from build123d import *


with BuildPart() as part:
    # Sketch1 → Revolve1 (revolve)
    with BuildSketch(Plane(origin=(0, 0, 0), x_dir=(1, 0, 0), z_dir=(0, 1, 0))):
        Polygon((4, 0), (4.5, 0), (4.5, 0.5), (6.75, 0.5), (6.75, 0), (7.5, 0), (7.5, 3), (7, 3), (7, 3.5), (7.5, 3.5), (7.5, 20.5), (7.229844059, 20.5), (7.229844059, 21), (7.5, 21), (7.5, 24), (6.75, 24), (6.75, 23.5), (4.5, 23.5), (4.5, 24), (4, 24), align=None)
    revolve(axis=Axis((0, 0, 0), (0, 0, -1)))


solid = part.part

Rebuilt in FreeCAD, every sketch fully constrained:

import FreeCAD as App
import Part
import Sketcher


def add_polygon(sketch, points):
    """Adds a closed chain of lines whose ends are joined by coincident constraints."""
    first, n = sketch.GeometryCount, len(points)
    for a, b in zip(points, points[1:] + points[:1]):
        sketch.addGeometry(Part.LineSegment(App.Vector(*a, 0), App.Vector(*b, 0)), False)
    for i in range(n):
        sketch.addConstraint(Sketcher.Constraint("Coincident", first + i, 2, first + (i + 1) % n, 1))

doc = App.newDocument("Part")
body = doc.addObject("PartDesign::Body", "Body")

sketch1 = body.newObject("Sketcher::SketchObject", "Sketch")
sketch1.AttachmentSupport = (doc.getObject("XZ_Plane"), [""])
sketch1.MapMode = "FlatFace"
add_polygon(sketch1, [(4, 0), (4.5, 0), (4.5, -0.5), (6.75, -0.5), (6.75, 0), (7.5, 0), (7.5, -3), (7, -3), (7, -3.5), (7.5, -3.5), (7.5, -20.5), (7.23, -20.5), (7.23, -21), (7.5, -21), (7.5, -24), (6.75, -24), (6.75, -23.5), (4.5, -23.5), (4.5, -24), (4, -24)])
sketch1.addConstraint([
    Sketcher.Constraint("Horizontal", 0),
    Sketcher.Constraint("Vertical", 1),
    Sketcher.Constraint("Horizontal", 2),
    Sketcher.Constraint("Vertical", 3),
    Sketcher.Constraint("Horizontal", 4),
    Sketcher.Constraint("Vertical", 5),
    Sketcher.Constraint("Horizontal", 6),
    Sketcher.Constraint("Vertical", 7),
    Sketcher.Constraint("Horizontal", 8),
    Sketcher.Constraint("Vertical", 9),
    Sketcher.Constraint("Horizontal", 10),
    Sketcher.Constraint("Vertical", 11),
    Sketcher.Constraint("Horizontal", 12),
    Sketcher.Constraint("Vertical", 13),
    Sketcher.Constraint("Horizontal", 14),
    Sketcher.Constraint("Vertical", 15),
    Sketcher.Constraint("Horizontal", 16),
    Sketcher.Constraint("Vertical", 17),
    Sketcher.Constraint("Horizontal", 18),
    Sketcher.Constraint("Vertical", 19),
    Sketcher.Constraint("PointOnObject", 0, 2, -1),
    Sketcher.Constraint("PointOnObject", 3, 2, -1),
    Sketcher.Constraint("Horizontal", 14, 2, 17, 2),
    Sketcher.Constraint("Vertical", 5, 2, 8, 2),
    Sketcher.Constraint("Vertical", 9, 2, 12, 2),
    Sketcher.Constraint("Vertical", 3, 2, 14, 2),
    Sketcher.Constraint("Vertical", 1, 2, 16, 2),
    Sketcher.Constraint("Equal", 0, 6),
    Sketcher.Constraint("Equal", 18, 1),
    Sketcher.Constraint("Equal", 3, 7),
    Sketcher.Constraint("Equal", 7, 11),
    Sketcher.Constraint("Equal", 5, 13),
    Sketcher.Constraint("Equal", 11, 15),
    Sketcher.Constraint("DistanceY", 5, 2, 5, 1, 3.0),
    Sketcher.Constraint("DistanceY", 9, 2, 9, 1, 17.0),
    Sketcher.Constraint("DistanceY", 19, 1, 19, 2, 24.0),
    Sketcher.Constraint("DistanceX", -1, 1, 6, 2, 7.0),
    Sketcher.Constraint("DistanceX", -1, 1, 18, 2, 4.0),
    Sketcher.Constraint("DistanceX", 2, 1, 2, 2, 2.25),
    Sketcher.Constraint("DistanceX", 10, 2, 10, 1, 0.270156),
])
revolution = body.newObject("PartDesign::Revolution", "Revolution")
revolution.Profile = sketch1
revolution.ReferenceAxis = (sketch1, ["V_Axis"])
revolution.Angle = 360

doc.recompute()
